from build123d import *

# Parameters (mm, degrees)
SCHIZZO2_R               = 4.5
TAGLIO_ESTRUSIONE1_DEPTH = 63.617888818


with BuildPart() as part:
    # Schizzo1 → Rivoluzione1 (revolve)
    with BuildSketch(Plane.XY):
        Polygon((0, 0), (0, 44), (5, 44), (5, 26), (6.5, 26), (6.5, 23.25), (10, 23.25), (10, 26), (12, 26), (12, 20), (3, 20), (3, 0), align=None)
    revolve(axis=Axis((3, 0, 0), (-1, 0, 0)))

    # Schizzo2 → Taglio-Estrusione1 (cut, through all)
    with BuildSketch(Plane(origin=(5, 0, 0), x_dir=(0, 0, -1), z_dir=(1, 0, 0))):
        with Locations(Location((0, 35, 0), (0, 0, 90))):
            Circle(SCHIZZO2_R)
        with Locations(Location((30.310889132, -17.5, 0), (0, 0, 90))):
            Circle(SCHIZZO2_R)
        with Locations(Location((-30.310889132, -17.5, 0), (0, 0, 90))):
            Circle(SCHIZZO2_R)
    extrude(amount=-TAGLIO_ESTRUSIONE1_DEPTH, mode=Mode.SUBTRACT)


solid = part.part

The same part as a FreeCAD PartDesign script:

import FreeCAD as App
import Part
import Sketcher
from FreeCAD import Vector
Q = App.Units.Quantity


def add_polygon(sketch, points):
    """Adds a closed chain of lines whose ends are joined by coincident constraints."""
    first, n = sketch.GeometryCount, len(points)
    for a, b in zip(points, points[1:] + points[:1]):
        sketch.addGeometry(Part.LineSegment(App.Vector(*a, 0), App.Vector(*b, 0)), False)
    for i in range(n):
        sketch.addConstraint(Sketcher.Constraint("Coincident", first + i, 2, first + (i + 1) % n, 1))

doc = App.newDocument("Part")
body = doc.addObject("PartDesign::Body", "Body")

# Sketch on XY plane
sketch1 = body.newObject("Sketcher::SketchObject", "Sketch")
sketch1.AttachmentSupport = (doc.getObject("XY_Plane"), [""])
sketch1.MapMode = "FlatFace"
add_polygon(sketch1, [(0, 44), (0, 0), (3, 0), (3, 20), (12, 20), (12, 26), (10, 26), (10, 23.2), (6.5, 23.2), (6.5, 26), (5, 26), (5, 44)])  # lines 0-11
sketch1.addConstraint(Sketcher.Constraint("Vertical", 0))
sketch1.addConstraint(Sketcher.Constraint("Horizontal", 1))
sketch1.addConstraint(Sketcher.Constraint("Vertical", 2))
sketch1.addConstraint(Sketcher.Constraint("Horizontal", 3))
sketch1.addConstraint(Sketcher.Constraint("Vertical", 4))
sketch1.addConstraint(Sketcher.Constraint("Horizontal", 5))
sketch1.addConstraint(Sketcher.Constraint("Vertical", 6))
sketch1.addConstraint(Sketcher.Constraint("Horizontal", 7))
sketch1.addConstraint(Sketcher.Constraint("Vertical", 8))
sketch1.addConstraint(Sketcher.Constraint("Horizontal", 9))
sketch1.addConstraint(Sketcher.Constraint("Vertical", 10))
sketch1.addConstraint(Sketcher.Constraint("Horizontal", 11))
sketch1.addConstraint(Sketcher.Constraint("Coincident", 0, 2, -1, 1))
sketch1.addConstraint(Sketcher.Constraint("Horizontal", 5, 2, 8, 2))
sketch1.addConstraint(Sketcher.Constraint("DistanceX", 1, 1, 1, 2, Q("3 mm")))
sketch1.addConstraint(Sketcher.Constraint("DistanceX", 3, 1, 3, 2, Q("9 mm")))
sketch1.addConstraint(Sketcher.Constraint("DistanceX", 5, 2, 5, 1, Q("2 mm")))
sketch1.addConstraint(Sketcher.Constraint("DistanceX", 11, 2, 11, 1, Q("5 mm")))
sketch1.addConstraint(Sketcher.Constraint("DistanceY", 0, 2, 0, 1, Q("44 mm")))
sketch1.addConstraint(Sketcher.Constraint("DistanceY", 2, 1, 2, 2, Q("20 mm")))
sketch1.addConstraint(Sketcher.Constraint("DistanceY", 4, 1, 4, 2, Q("6 mm")))
sketch1.addConstraint(Sketcher.Constraint("DistanceX", 7, 2, 7, 1, Q("3.5 mm")))
sketch1.addConstraint(Sketcher.Constraint("DistanceY", 6, 2, 6, 1, Q("2.75 mm")))
revolution = body.newObject("PartDesign::Revolution", "Revolution")
revolution.Profile = sketch1
revolution.ReferenceAxis = (sketch1, ["H_Axis"])
revolution.Angle = 360

# Sketch on YZ plane
sketch2 = body.newObject("Sketcher::SketchObject", "Sketch001")
sketch2.AttachmentSupport = (doc.getObject("YZ_Plane"), [""])
sketch2.MapMode = "FlatFace"
sketch2.AttachmentOffset = App.Placement(Vector(0, 0, 5), App.Rotation())
sketch2.addGeometry(Part.Circle(Vector(35, 0, 0), Vector(0, 0, 1), 4.5), False)
sketch2.addGeometry(Part.Circle(Vector(-17.5, -30.3, 0), Vector(0, 0, 1), 4.5), False)
sketch2.addGeometry(Part.Circle(Vector(-17.5, 30.3, 0), Vector(0, 0, 1), 4.5), False)
sketch2.addConstraint(Sketcher.Constraint("Equal", 0, 1))
sketch2.addConstraint(Sketcher.Constraint("Equal", 1, 2))
sketch2.addConstraint(Sketcher.Constraint("Symmetric", 1, 3, 2, 3, -1))
sketch2.addConstraint(Sketcher.Constraint("PointOnObject", 0, 3, -1))
sketch2.addConstraint(Sketcher.Constraint("Diameter", 0, Q("9 mm")))
sketch2.addConstraint(Sketcher.Constraint("DistanceX", -1, 1, 0, 3, Q("35 mm")))
sketch2.addConstraint(Sketcher.Constraint("DistanceX", 1, 3, -1, 1, Q("17.5 mm")))
sketch2.addConstraint(Sketcher.Constraint("DistanceY", 1, 3, -1, 1, Q("30.310889 mm")))
pocket1 = body.newObject("PartDesign::Pocket", "Pocket")
pocket1.Profile = sketch2
pocket1.Type = "ThroughAll"

doc.recompute()
